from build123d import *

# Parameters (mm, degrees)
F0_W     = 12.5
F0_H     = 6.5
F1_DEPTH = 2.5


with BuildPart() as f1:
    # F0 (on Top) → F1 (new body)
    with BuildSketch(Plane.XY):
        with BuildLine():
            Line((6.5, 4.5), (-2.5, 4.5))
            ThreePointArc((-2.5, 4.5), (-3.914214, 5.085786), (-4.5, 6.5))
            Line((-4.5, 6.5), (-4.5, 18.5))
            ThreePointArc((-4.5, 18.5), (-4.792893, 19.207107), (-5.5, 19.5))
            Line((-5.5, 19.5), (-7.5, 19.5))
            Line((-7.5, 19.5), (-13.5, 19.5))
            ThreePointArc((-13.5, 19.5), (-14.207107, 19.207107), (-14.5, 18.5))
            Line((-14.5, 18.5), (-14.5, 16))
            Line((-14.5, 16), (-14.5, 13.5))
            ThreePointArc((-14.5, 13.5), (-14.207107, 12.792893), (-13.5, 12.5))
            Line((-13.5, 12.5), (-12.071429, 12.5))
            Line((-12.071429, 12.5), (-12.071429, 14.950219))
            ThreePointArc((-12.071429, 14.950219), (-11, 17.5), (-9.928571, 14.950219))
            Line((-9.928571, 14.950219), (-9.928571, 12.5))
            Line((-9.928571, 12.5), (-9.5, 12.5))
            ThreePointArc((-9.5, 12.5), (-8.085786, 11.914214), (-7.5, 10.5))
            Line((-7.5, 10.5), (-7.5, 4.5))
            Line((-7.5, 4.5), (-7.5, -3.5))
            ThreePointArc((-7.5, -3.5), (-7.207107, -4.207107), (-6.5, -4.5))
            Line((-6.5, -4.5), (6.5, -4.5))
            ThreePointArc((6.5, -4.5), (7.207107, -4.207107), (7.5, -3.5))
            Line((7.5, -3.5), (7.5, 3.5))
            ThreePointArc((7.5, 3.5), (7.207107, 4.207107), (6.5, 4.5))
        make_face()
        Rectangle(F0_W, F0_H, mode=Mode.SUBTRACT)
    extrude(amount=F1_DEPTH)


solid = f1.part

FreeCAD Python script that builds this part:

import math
import FreeCAD as App
import Part
import Sketcher
from FreeCAD import Vector


def add_polygon(sketch, points):
    """Adds a closed chain of lines whose ends are joined by coincident constraints."""
    first, n = sketch.GeometryCount, len(points)
    for a, b in zip(points, points[1:] + points[:1]):
        sketch.addGeometry(Part.LineSegment(App.Vector(*a, 0), App.Vector(*b, 0)), False)
    for i in range(n):
        sketch.addConstraint(Sketcher.Constraint("Coincident", first + i, 2, first + (i + 1) % n, 1))

doc = App.newDocument("Part")
body = doc.addObject("PartDesign::Body", "Body")

# Sketch on XY plane
sketch1 = body.newObject("Sketcher::SketchObject", "Sketch")
sketch1.AttachmentSupport = (doc.getObject("XY_Plane"), [""])
sketch1.MapMode = "FlatFace"
sketch1.addGeometry(Part.LineSegment(Vector(6.5, 4.5, 0), Vector(-2.5, 4.5, 0)), False)  # 0
sketch1.addGeometry(Part.ArcOfCircle(Part.Circle(Vector(-2.5, 6.5, 0), Vector(0, 0, 1), 2), math.radians(180), math.radians(270)), False)  # 1
sketch1.addGeometry(Part.LineSegment(Vector(-4.5, 6.5, 0), Vector(-4.5, 18.5, 0)), False)  # 2
sketch1.addGeometry(Part.ArcOfCircle(Part.Circle(Vector(-5.5, 18.5, 0), Vector(0, 0, 1), 1), math.radians(0), math.radians(90)), False)  # 3
sketch1.addGeometry(Part.LineSegment(Vector(-5.5, 19.5, 0), Vector(-13.5, 19.5, 0)), False)  # 4
sketch1.addGeometry(Part.ArcOfCircle(Part.Circle(Vector(-13.5, 18.5, 0), Vector(0, 0, 1), 1), math.radians(90), math.radians(180)), False)  # 5
sketch1.addGeometry(Part.LineSegment(Vector(-14.5, 18.5, 0), Vector(-14.5, 13.5, 0)), False)  # 6
sketch1.addGeometry(Part.ArcOfCircle(Part.Circle(Vector(-13.5, 13.5, 0), Vector(0, 0, 1), 1), math.radians(180), math.radians(270)), False)  # 7
sketch1.addGeometry(Part.LineSegment(Vector(-13.5, 12.5, 0), Vector(-12.07, 12.5, 0)), False)  # 8
sketch1.addGeometry(Part.LineSegment(Vector(-12.07, 12.5, 0), Vector(-12.07, 14.95, 0)), False)  # 9
sketch1.addGeometry(Part.ArcOfCircle(Part.Circle(Vector(-11, 16, 0), Vector(0, 0, 1), 1.5), math.radians(-44), math.radians(224)), False)  # 10
sketch1.addGeometry(Part.LineSegment(Vector(-9.93, 14.95, 0), Vector(-9.93, 12.5, 0)), False)  # 11
sketch1.addGeometry(Part.LineSegment(Vector(-9.93, 12.5, 0), Vector(-9.5, 12.5, 0)), False)  # 12
sketch1.addGeometry(Part.ArcOfCircle(Part.Circle(Vector(-9.5, 10.5, 0), Vector(0, 0, 1), 2), math.radians(0), math.radians(90)), False)  # 13
sketch1.addGeometry(Part.LineSegment(Vector(-7.5, 10.5, 0), Vector(-7.5, -3.5, 0)), False)  # 14
sketch1.addGeometry(Part.ArcOfCircle(Part.Circle(Vector(-6.5, -3.5, 0), Vector(0, 0, 1), 1), math.radians(180), math.radians(270)), False)  # 15
sketch1.addGeometry(Part.LineSegment(Vector(-6.5, -4.5, 0), Vector(6.5, -4.5, 0)), False)  # 16
sketch1.addGeometry(Part.ArcOfCircle(Part.Circle(Vector(6.5, -3.5, 0), Vector(0, 0, 1), 1), math.radians(-90), math.radians(0)), False)  # 17
sketch1.addGeometry(Part.LineSegment(Vector(7.5, -3.5, 0), Vector(7.5, 3.5, 0)), False)  # 18
sketch1.addGeometry(Part.ArcOfCircle(Part.Circle(Vector(6.5, 3.5, 0), Vector(0, 0, 1), 1), math.radians(0), math.radians(90)), False)  # 19
add_polygon(sketch1, [(6.25, -3.25), (-6.25, -3.25), (-6.25, 3.25), (6.25, 3.25)])  # lines 20-23
sketch1.addConstraint(Sketcher.Constraint("Tangent", 0, 2, 1, 2))
sketch1.addConstraint(Sketcher.Constraint("Tangent", 1, 1, 2, 1))
sketch1.addConstraint(Sketcher.Constraint("Tangent", 2, 2, 3, 1))
sketch1.addConstraint(Sketcher.Constraint("Tangent", 3, 2, 4, 1))
sketch1.addConstraint(Sketcher.Constraint("Tangent", 4, 2, 5, 1))
sketch1.addConstraint(Sketcher.Constraint("Tangent", 5, 2, 6, 1))
sketch1.addConstraint(Sketcher.Constraint("Tangent", 6, 2, 7, 1))
sketch1.addConstraint(Sketcher.Constraint("Tangent", 7, 2, 8, 1))
sketch1.addConstraint(Sketcher.Constraint("Coincident", 8, 2, 9, 1))
sketch1.addConstraint(Sketcher.Constraint("Coincident", 9, 2, 10, 2))
sketch1.addConstraint(Sketcher.Constraint("Coincident", 10, 1, 11, 1))
sketch1.addConstraint(Sketcher.Constraint("Coincident", 11, 2, 12, 1))
sketch1.addConstraint(Sketcher.Constraint("Tangent", 12, 2, 13, 2))
sketch1.addConstraint(Sketcher.Constraint("Tangent", 13, 1, 14, 1))
sketch1.addConstraint(Sketcher.Constraint("Tangent", 14, 2, 15, 1))
sketch1.addConstraint(Sketcher.Constraint("Tangent", 15, 2, 16, 1))
sketch1.addConstraint(Sketcher.Constraint("Tangent", 16, 2, 17, 1))
sketch1.addConstraint(Sketcher.Constraint("Tangent", 17, 2, 18, 1))
sketch1.addConstraint(Sketcher.Constraint("Tangent", 18, 2, 19, 1))
sketch1.addConstraint(Sketcher.Constraint("Tangent", 19, 2, 0, 1))
sketch1.addConstraint(Sketcher.Constraint("Horizontal", 0))
sketch1.addConstraint(Sketcher.Constraint("Vertical", 2))
sketch1.addConstraint(Sketcher.Constraint("Horizontal", 4))
sketch1.addConstraint(Sketcher.Constraint("Vertical", 6))
sketch1.addConstraint(Sketcher.Constraint("Horizontal", 8))
sketch1.addConstraint(Sketcher.Constraint("Vertical", 9))
sketch1.addConstraint(Sketcher.Constraint("Vertical", 11))
sketch1.addConstraint(Sketcher.Constraint("Horizontal", 12))
sketch1.addConstraint(Sketcher.Constraint("Vertical", 14))
sketch1.addConstraint(Sketcher.Constraint("Horizontal", 16))
sketch1.addConstraint(Sketcher.Constraint("Vertical", 18))
sketch1.addConstraint(Sketcher.Constraint("Horizontal", 20))
sketch1.addConstraint(Sketcher.Constraint("Vertical", 21))
sketch1.addConstraint(Sketcher.Constraint("Horizontal", 22))
sketch1.addConstraint(Sketcher.Constraint("Vertical", 23))
sketch1.addConstraint(Sketcher.Constraint("Equal", 3, 5))
sketch1.addConstraint(Sketcher.Constraint("Equal", 5, 7))
sketch1.addConstraint(Sketcher.Constraint("Equal", 1, 13))
sketch1.addConstraint(Sketcher.Constraint("Equal", 7, 15))
sketch1.addConstraint(Sketcher.Constraint("Equal", 15, 17))
sketch1.addConstraint(Sketcher.Constraint("Equal", 17, 19))
sketch1.addConstraint(Sketcher.Constraint("Symmetric", 15, 3, 19, 3, -1, 1))
sketch1.addConstraint(Sketcher.Constraint("Symmetric", 20, 2, 22, 2, -1, 1))
sketch1.addConstraint(Sketcher.Constraint("Horizontal", 9, 2, 10, 1))
sketch1.addConstraint(Sketcher.Constraint("Horizontal", 8, 2, 11, 2))
sketch1.addConstraint(Sketcher.Constraint("Radius", 1, 1.999999))
sketch1.addConstraint(Sketcher.Constraint("Radius", 3, 0.999999))
sketch1.addConstraint(Sketcher.Constraint("Radius", 10, 1.5))
sketch1.addConstraint(Sketcher.Constraint("DistanceX", 0, 2, 0, 1, 9.0))
sketch1.addConstraint(Sketcher.Constraint("DistanceX", 4, 2, 4, 1, 8.0))
sketch1.addConstraint(Sketcher.Constraint("DistanceX", 16, 1, 16, 2, 13.0))
sketch1.addConstraint(Sketcher.Constraint("DistanceY", 2, 1, 2, 2, 12.0))
sketch1.addConstraint(Sketcher.Constraint("DistanceY", 6, 2, 6, 1, 5.0))
sketch1.addConstraint(Sketcher.Constraint("DistanceY", 14, 2, 14, 1, 14.0))
sketch1.addConstraint(Sketcher.Constraint("DistanceX", 20, 2, 20, 1, 12.5))
sketch1.addConstraint(Sketcher.Constraint("DistanceY", 21, 1, 21, 2, 6.5))
sketch1.addConstraint(Sketcher.Constraint("DistanceX", 10, 3, -1, 1, 11.0))
sketch1.addConstraint(Sketcher.Constraint("DistanceY", -1, 1, 10, 3, 16.0))
sketch1.addConstraint(Sketcher.Constraint("DistanceX", 8, 1, 8, 2, 1.428571))
pad1 = body.newObject("PartDesign::Pad", "Pad")
pad1.Profile = sketch1
pad1.Length = 2.5

doc.recompute()
